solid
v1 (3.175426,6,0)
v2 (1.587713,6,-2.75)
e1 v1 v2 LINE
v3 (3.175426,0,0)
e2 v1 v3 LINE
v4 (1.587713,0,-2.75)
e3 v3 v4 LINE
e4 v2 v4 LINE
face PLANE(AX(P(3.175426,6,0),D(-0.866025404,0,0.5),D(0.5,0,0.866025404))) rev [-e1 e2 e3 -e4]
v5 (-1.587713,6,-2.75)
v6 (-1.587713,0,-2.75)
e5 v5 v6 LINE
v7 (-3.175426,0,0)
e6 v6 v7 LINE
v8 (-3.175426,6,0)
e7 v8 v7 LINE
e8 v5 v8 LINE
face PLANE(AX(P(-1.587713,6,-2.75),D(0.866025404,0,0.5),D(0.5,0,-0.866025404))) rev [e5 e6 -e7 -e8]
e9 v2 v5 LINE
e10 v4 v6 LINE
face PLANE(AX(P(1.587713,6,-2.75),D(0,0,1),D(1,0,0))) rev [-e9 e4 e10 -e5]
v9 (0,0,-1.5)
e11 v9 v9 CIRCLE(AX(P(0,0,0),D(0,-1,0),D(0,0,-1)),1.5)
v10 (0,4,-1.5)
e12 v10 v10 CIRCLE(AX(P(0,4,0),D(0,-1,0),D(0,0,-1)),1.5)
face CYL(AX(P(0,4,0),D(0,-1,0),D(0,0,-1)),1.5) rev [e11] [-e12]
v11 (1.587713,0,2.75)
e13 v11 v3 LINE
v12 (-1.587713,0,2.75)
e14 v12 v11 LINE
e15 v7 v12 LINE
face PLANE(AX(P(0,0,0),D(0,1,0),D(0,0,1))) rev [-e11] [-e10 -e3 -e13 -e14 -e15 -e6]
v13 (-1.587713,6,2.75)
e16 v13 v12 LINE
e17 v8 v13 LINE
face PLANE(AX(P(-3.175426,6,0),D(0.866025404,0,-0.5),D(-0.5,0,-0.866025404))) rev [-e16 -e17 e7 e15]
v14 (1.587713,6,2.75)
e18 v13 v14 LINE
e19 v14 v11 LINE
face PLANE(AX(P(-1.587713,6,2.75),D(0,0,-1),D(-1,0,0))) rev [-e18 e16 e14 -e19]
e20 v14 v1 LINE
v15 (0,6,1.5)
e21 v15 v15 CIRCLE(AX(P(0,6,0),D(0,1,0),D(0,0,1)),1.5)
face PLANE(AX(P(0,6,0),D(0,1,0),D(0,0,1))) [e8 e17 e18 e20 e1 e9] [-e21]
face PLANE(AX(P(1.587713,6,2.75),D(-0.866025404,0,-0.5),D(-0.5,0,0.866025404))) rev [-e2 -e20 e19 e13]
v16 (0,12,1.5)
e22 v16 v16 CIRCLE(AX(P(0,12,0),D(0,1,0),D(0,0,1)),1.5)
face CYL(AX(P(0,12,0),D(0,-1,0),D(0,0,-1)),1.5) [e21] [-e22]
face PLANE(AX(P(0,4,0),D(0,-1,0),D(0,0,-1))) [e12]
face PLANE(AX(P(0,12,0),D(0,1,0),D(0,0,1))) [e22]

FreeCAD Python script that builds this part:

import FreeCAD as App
import Part
import Sketcher
from FreeCAD import Vector
Q = App.Units.Quantity

doc = App.newDocument("Part")
params = doc.addObject("Spreadsheet::Sheet", "Params")
for row, (alias, value) in enumerate([
    ("pad1_length", "6 mm"),
    ("sketch2_diameter", "3 mm"),
    ("pocket1_length", "4 mm"),
    ("sketch3_diameter", "3 mm"),
    ("pad2_length", "6 mm"),
], start=1):
    params.set(f"A{row}", alias)
    params.set(f"B{row}", "=" + value)
    params.setAlias(f"B{row}", alias)

body = doc.addObject("PartDesign::Body", "Body")

sketch1 = body.newObject("Sketcher::SketchObject", "Sketch")
sketch1.AttachmentSupport = (doc.getObject("XZ_Plane"), [""])
sketch1.MapMode = "FlatFace"
sketch1.addGeometry([
    Part.LineSegment(Vector(3.175426, 0, 0), Vector(1.587713, -2.75, 0)),
    Part.LineSegment(Vector(1.587713, -2.75, 0), Vector(-1.587713, -2.75, 0)),
    Part.LineSegment(Vector(-1.587713, -2.75, 0), Vector(-3.175426, 0, 0)),
    Part.LineSegment(Vector(-3.175426, 0, 0), Vector(-1.587713, 2.75, 0)),
    Part.LineSegment(Vector(-1.587713, 2.75, 0), Vector(1.587713, 2.75, 0)),
    Part.LineSegment(Vector(1.587713, 2.75, 0), Vector(3.175426, 0, 0)),
], False)
sketch1.addConstraint([
    Sketcher.Constraint("Coincident", 0, 2, 1, 1),
    Sketcher.Constraint("Coincident", 1, 2, 2, 1),
    Sketcher.Constraint("Coincident", 2, 2, 3, 1),
    Sketcher.Constraint("Coincident", 3, 2, 4, 1),
    Sketcher.Constraint("Coincident", 4, 2, 5, 1),
    Sketcher.Constraint("Coincident", 5, 2, 0, 1),
    Sketcher.Constraint("Horizontal", 1),
    Sketcher.Constraint("Horizontal", 4),
    Sketcher.Constraint("Symmetric", 0, 2, 3, 2, -1, 1),
    Sketcher.Constraint("Symmetric", 2, 2, 5, 2, -1, 1),
    Sketcher.Constraint("PointOnObject", 2, 2, -1),
    Sketcher.Constraint("Parallel", 2, 5),
    Sketcher.Constraint("Vertical", 1, 2, 3, 2),
    Sketcher.Constraint("Angle", 0, Q("-120 deg")),
    Sketcher.Constraint("DistanceY", 1, 2, 3, 2, 5.5),
    Sketcher.Constraint("DistanceX", 1, 2, 1, 1, 3.175426),
])
pad1 = body.newObject("PartDesign::Pad", "Pad")
pad1.Profile = sketch1
pad1.setExpression("Length", "Params.pad1_length")
pad1.Reversed = True

sketch2 = body.newObject("Sketcher::SketchObject", "Sketch001")
sketch2.AttachmentSupport = (doc.getObject("XZ_Plane"), [""])
sketch2.MapMode = "FlatFace"
sketch2.addGeometry(Part.Circle(Vector(0, 0, 0), Vector(0, 0, 1), 1.5), False)
sketch2.addConstraint([
    Sketcher.Constraint("Coincident", 0, 3, -1, 1),
    Sketcher.Constraint("Diameter", 0, 3.0),
])
sketch2.setExpression("Constraints[1]", "Params.sketch2_diameter")
pocket1 = body.newObject("PartDesign::Pocket", "Pocket")
pocket1.Profile = sketch2
pocket1.setExpression("Length", "Params.pocket1_length")

sketch3 = body.newObject("Sketcher::SketchObject", "Sketch002")
sketch3.AttachmentSupport = (doc.getObject("XZ_Plane"), [""])
sketch3.MapMode = "FlatFace"
sketch3.AttachmentOffset = App.Placement(Vector(0, 0, -6), App.Rotation())
sketch3.addGeometry(Part.Circle(Vector(0, 0, 0), Vector(0, 0, 1), 1.5), False)
sketch3.addConstraint([
    Sketcher.Constraint("Coincident", 0, 3, -1, 1),
    Sketcher.Constraint("Diameter", 0, 3.0),
])
sketch3.setExpression("Constraints[1]", "Params.sketch3_diameter")
pad2 = body.newObject("PartDesign::Pad", "Pad001")
pad2.Profile = sketch3
pad2.setExpression("Length", "Params.pad2_length")
pad2.Reversed = True

doc.recompute()
